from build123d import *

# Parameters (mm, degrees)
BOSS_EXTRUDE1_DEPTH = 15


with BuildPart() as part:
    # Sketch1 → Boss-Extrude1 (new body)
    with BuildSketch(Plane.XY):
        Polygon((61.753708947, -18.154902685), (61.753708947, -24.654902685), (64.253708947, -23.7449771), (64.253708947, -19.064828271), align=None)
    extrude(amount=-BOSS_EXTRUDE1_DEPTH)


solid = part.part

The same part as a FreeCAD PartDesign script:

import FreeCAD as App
import Part
import Sketcher
Q = App.Units.Quantity


def add_polygon(sketch, points):
    """Adds a closed chain of lines whose ends are joined by coincident constraints."""
    first, n = sketch.GeometryCount, len(points)
    for a, b in zip(points, points[1:] + points[:1]):
        sketch.addGeometry(Part.LineSegment(App.Vector(*a, 0), App.Vector(*b, 0)), False)
    for i in range(n):
        sketch.addConstraint(Sketcher.Constraint("Coincident", first + i, 2, first + (i + 1) % n, 1))

doc = App.newDocument("Part")
body = doc.addObject("PartDesign::Body", "Body")

sketch1 = body.newObject("Sketcher::SketchObject", "Sketch")
sketch1.AttachmentSupport = (doc.getObject("XY_Plane"), [""])
sketch1.MapMode = "FlatFace"
add_polygon(sketch1, [(61.753709, -18.154903), (61.753709, -24.654903), (64.253709, -23.744977), (64.253709, -19.064828)])
sketch1.addConstraint(Sketcher.Constraint("Vertical", 0))
sketch1.addConstraint(Sketcher.Constraint("Vertical", 2))
sketch1.addConstraint(Sketcher.Constraint("Equal", 1, 3))
sketch1.addConstraint(Sketcher.Constraint("Angle", 1, Q("20 deg")))
sketch1.addConstraint(Sketcher.Constraint("DistanceY", 0, 2, 0, 1, Q("6.5 mm")))
sketch1.addConstraint(Sketcher.Constraint("DistanceX", 0, 2, 1, 2, Q("2.5 mm")))
sketch1.addConstraint(Sketcher.Constraint("DistanceX", -1, 1, 0, 2, Q("61.753709 mm")))
sketch1.addConstraint(Sketcher.Constraint("DistanceY", 2, 2, -1, 1, Q("19.064828 mm")))
pad1 = body.newObject("PartDesign::Pad", "Pad")
pad1.Profile = sketch1
pad1.Length = 15
pad1.Reversed = True

doc.recompute()
